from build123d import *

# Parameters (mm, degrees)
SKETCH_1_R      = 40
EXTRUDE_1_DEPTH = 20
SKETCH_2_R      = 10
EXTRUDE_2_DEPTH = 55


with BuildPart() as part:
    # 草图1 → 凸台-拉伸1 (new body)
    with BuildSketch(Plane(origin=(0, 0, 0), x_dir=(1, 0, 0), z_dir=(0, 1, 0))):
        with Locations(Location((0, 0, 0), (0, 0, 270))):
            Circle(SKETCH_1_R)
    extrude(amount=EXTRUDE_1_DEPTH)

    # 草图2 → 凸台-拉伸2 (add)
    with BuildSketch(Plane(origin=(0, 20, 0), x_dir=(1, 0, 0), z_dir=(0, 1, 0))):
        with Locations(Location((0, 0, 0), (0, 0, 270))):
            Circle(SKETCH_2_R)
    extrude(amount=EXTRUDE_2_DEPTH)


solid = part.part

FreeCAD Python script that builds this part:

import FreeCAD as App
import Part
import Sketcher
Q = App.Units.Quantity

doc = App.newDocument("Part")
body = doc.addObject("PartDesign::Body", "Body")

# Sketch on XZ plane
sketch1 = body.newObject("Sketcher::SketchObject", "Sketch")
sketch1.AttachmentSupport = (doc.getObject("XZ_Plane"), [""])
sketch1.MapMode = "FlatFace"
sketch1.addGeometry(Part.Circle(App.Vector(0, 0, 0), App.Vector(0, 0, 1), 40), False)
sketch1.addConstraint([
    Sketcher.Constraint("Coincident", 0, 3, -1, 1),
    Sketcher.Constraint("Diameter", 0, Q("80 mm")),
])
pad1 = body.newObject("PartDesign::Pad", "Pad")
pad1.Profile = sketch1
pad1.Length = 20
pad1.Reversed = True

# Sketch on XZ plane
sketch2 = body.newObject("Sketcher::SketchObject", "Sketch001")
sketch2.AttachmentSupport = (doc.getObject("XZ_Plane"), [""])
sketch2.MapMode = "FlatFace"
sketch2.AttachmentOffset = App.Placement(App.Vector(0, 0, -20), App.Rotation())
sketch2.addGeometry(Part.Circle(App.Vector(0, 0, 0), App.Vector(0, 0, 1), 10), False)
sketch2.addConstraint([
    Sketcher.Constraint("Coincident", 0, 3, -1, 1),
    Sketcher.Constraint("Diameter", 0, Q("20 mm")),
])
pad2 = body.newObject("PartDesign::Pad", "Pad001")
pad2.Profile = sketch2
pad2.Length = 55
pad2.Reversed = True

doc.recompute()
